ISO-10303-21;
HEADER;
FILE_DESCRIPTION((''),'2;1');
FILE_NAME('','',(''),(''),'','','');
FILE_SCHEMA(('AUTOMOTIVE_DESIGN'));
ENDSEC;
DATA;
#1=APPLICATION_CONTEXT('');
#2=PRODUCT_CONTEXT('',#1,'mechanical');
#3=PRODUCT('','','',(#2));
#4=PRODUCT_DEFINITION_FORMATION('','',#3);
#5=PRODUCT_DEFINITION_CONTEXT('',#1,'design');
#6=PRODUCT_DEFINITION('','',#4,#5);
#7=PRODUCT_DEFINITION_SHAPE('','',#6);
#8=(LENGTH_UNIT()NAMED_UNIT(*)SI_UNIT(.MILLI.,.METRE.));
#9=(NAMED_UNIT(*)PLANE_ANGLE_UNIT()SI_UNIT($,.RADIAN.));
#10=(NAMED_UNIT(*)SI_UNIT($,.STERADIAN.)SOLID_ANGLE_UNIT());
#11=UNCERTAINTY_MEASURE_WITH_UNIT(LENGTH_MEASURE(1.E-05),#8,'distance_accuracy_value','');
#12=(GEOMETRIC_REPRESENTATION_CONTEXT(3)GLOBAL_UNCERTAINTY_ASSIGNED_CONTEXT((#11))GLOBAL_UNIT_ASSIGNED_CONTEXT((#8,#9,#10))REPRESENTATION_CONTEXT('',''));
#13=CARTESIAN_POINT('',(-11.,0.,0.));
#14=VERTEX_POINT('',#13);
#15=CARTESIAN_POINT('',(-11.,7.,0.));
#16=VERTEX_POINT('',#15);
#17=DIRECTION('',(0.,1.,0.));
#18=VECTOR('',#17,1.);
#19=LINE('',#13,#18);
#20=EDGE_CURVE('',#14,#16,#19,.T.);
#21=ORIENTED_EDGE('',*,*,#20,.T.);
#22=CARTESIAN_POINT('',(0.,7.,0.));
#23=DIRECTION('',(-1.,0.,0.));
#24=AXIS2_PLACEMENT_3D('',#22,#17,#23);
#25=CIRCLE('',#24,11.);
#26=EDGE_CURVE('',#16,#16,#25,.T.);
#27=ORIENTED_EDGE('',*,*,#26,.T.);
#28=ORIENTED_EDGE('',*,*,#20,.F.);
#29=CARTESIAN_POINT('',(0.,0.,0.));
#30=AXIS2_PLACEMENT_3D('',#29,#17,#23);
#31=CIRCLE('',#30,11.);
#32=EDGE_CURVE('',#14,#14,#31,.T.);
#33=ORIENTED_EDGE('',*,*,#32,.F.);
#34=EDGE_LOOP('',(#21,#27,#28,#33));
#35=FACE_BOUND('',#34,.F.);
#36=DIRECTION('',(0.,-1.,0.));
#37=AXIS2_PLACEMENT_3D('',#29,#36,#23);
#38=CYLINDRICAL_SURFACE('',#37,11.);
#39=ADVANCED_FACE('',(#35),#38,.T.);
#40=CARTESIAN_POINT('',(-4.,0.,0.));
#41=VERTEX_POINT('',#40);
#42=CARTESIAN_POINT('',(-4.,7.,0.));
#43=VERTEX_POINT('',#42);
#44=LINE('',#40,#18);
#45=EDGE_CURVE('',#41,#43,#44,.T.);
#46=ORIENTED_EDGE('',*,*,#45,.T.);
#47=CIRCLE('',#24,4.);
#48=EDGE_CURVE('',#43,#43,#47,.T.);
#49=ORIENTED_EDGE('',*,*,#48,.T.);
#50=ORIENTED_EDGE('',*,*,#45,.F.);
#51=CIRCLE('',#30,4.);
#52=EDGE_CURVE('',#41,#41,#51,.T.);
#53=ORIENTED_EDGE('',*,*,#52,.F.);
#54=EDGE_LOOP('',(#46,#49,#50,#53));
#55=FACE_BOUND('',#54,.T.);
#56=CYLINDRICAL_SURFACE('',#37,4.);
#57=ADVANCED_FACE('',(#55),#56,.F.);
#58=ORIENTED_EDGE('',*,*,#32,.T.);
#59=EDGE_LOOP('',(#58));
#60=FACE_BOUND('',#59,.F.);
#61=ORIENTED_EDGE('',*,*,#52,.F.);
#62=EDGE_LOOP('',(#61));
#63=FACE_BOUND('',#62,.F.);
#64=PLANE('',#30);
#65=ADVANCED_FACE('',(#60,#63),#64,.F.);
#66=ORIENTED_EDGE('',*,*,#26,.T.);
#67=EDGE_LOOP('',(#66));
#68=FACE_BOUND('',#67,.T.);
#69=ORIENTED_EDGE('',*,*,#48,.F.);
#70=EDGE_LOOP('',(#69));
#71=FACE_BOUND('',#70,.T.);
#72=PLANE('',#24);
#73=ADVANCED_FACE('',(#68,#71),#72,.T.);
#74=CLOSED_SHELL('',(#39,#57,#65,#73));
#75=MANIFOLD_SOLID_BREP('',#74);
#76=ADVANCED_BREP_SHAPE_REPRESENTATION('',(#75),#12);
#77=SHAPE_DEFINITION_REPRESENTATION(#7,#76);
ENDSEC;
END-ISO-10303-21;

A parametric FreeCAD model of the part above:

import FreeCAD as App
import Part
import Sketcher

V = App.Vector
Q = App.Units.Quantity

doc = App.newDocument("Part")
params = doc.addObject("Spreadsheet::Sheet", "Params")
for row, (alias, value) in enumerate([
    ("sketch1_diameter", "22 mm"),
    ("sketch1_diameter2", "8 mm"),
    ("pad1_length", "7 mm"),
], start=1):
    params.set(f"A{row}", alias)
    params.set(f"B{row}", "=" + value)
    params.setAlias(f"B{row}", alias)

body = doc.addObject("PartDesign::Body", "Body")

# Sketch on XZ plane
sketch1 = doc.addObject("Sketcher::SketchObject", "Sketch")
body.addObject(sketch1)
sketch1.AttachmentSupport = (doc.XZ_Plane, [""])
sketch1.MapMode = "FlatFace"
sketch1.addGeometry(Part.Circle(V(0, 0, 0), V(0, 0, 1), 11), False)
sketch1.addGeometry(Part.Circle(V(0, 0, 0), V(0, 0, 1), 4), False)
sketch1.addConstraint(Sketcher.Constraint("Coincident", 0, 3, -1, 1))
sketch1.addConstraint(Sketcher.Constraint("Coincident", 1, 3, -1, 1))
sketch1.addConstraint(Sketcher.Constraint("Diameter", 0, Q("22 mm")))
sketch1.addConstraint(Sketcher.Constraint("Diameter", 1, Q("8 mm")))
sketch1.setExpression("Constraints[2]", "Params.sketch1_diameter")
sketch1.setExpression("Constraints[3]", "Params.sketch1_diameter2")
pad1 = doc.addObject("PartDesign::Pad", "Pad")
body.addObject(pad1)
pad1.Profile = sketch1
pad1.setExpression("Length", "Params.pad1_length")
pad1.Reversed = True

doc.recompute()
